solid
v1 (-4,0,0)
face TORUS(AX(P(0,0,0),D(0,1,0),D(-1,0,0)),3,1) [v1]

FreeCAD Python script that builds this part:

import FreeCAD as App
import Part
import Sketcher
from FreeCAD import Vector
Q = App.Units.Quantity

doc = App.newDocument("Part")
params = doc.addObject("Spreadsheet::Sheet", "Params")
for row, (alias, value) in enumerate([
    ("sketch1_diameter", "2 mm"),
    ("revolution_angle", "360 deg"),
], start=1):
    params.set(f"A{row}", alias)
    params.set(f"B{row}", "=" + value)
    params.setAlias(f"B{row}", alias)

body = doc.addObject("PartDesign::Body", "Body")

sketch1 = body.newObject("Sketcher::SketchObject", "Sketch")
sketch1.AttachmentSupport = (doc.getObject("XY_Plane"), [""])
sketch1.MapMode = "FlatFace"
sketch1.addGeometry(Part.Circle(Vector(3, 0, 0), Vector(0, 0, 1), 1), False)
sketch1.addConstraint([
    Sketcher.Constraint("PointOnObject", 0, 3, -1),
    Sketcher.Constraint("Diameter", 0, Q("2 mm")),
    Sketcher.Constraint("DistanceX", -1, 1, 0, 3, Q("3 mm")),
])
sketch1.setExpression("Constraints[1]", "Params.sketch1_diameter")
revolution = body.newObject("PartDesign::Revolution", "Revolution")
revolution.Profile = sketch1
revolution.ReferenceAxis = (sketch1, ["V_Axis"])
revolution.setExpression("Angle", "Params.revolution_angle")

doc.recompute()
